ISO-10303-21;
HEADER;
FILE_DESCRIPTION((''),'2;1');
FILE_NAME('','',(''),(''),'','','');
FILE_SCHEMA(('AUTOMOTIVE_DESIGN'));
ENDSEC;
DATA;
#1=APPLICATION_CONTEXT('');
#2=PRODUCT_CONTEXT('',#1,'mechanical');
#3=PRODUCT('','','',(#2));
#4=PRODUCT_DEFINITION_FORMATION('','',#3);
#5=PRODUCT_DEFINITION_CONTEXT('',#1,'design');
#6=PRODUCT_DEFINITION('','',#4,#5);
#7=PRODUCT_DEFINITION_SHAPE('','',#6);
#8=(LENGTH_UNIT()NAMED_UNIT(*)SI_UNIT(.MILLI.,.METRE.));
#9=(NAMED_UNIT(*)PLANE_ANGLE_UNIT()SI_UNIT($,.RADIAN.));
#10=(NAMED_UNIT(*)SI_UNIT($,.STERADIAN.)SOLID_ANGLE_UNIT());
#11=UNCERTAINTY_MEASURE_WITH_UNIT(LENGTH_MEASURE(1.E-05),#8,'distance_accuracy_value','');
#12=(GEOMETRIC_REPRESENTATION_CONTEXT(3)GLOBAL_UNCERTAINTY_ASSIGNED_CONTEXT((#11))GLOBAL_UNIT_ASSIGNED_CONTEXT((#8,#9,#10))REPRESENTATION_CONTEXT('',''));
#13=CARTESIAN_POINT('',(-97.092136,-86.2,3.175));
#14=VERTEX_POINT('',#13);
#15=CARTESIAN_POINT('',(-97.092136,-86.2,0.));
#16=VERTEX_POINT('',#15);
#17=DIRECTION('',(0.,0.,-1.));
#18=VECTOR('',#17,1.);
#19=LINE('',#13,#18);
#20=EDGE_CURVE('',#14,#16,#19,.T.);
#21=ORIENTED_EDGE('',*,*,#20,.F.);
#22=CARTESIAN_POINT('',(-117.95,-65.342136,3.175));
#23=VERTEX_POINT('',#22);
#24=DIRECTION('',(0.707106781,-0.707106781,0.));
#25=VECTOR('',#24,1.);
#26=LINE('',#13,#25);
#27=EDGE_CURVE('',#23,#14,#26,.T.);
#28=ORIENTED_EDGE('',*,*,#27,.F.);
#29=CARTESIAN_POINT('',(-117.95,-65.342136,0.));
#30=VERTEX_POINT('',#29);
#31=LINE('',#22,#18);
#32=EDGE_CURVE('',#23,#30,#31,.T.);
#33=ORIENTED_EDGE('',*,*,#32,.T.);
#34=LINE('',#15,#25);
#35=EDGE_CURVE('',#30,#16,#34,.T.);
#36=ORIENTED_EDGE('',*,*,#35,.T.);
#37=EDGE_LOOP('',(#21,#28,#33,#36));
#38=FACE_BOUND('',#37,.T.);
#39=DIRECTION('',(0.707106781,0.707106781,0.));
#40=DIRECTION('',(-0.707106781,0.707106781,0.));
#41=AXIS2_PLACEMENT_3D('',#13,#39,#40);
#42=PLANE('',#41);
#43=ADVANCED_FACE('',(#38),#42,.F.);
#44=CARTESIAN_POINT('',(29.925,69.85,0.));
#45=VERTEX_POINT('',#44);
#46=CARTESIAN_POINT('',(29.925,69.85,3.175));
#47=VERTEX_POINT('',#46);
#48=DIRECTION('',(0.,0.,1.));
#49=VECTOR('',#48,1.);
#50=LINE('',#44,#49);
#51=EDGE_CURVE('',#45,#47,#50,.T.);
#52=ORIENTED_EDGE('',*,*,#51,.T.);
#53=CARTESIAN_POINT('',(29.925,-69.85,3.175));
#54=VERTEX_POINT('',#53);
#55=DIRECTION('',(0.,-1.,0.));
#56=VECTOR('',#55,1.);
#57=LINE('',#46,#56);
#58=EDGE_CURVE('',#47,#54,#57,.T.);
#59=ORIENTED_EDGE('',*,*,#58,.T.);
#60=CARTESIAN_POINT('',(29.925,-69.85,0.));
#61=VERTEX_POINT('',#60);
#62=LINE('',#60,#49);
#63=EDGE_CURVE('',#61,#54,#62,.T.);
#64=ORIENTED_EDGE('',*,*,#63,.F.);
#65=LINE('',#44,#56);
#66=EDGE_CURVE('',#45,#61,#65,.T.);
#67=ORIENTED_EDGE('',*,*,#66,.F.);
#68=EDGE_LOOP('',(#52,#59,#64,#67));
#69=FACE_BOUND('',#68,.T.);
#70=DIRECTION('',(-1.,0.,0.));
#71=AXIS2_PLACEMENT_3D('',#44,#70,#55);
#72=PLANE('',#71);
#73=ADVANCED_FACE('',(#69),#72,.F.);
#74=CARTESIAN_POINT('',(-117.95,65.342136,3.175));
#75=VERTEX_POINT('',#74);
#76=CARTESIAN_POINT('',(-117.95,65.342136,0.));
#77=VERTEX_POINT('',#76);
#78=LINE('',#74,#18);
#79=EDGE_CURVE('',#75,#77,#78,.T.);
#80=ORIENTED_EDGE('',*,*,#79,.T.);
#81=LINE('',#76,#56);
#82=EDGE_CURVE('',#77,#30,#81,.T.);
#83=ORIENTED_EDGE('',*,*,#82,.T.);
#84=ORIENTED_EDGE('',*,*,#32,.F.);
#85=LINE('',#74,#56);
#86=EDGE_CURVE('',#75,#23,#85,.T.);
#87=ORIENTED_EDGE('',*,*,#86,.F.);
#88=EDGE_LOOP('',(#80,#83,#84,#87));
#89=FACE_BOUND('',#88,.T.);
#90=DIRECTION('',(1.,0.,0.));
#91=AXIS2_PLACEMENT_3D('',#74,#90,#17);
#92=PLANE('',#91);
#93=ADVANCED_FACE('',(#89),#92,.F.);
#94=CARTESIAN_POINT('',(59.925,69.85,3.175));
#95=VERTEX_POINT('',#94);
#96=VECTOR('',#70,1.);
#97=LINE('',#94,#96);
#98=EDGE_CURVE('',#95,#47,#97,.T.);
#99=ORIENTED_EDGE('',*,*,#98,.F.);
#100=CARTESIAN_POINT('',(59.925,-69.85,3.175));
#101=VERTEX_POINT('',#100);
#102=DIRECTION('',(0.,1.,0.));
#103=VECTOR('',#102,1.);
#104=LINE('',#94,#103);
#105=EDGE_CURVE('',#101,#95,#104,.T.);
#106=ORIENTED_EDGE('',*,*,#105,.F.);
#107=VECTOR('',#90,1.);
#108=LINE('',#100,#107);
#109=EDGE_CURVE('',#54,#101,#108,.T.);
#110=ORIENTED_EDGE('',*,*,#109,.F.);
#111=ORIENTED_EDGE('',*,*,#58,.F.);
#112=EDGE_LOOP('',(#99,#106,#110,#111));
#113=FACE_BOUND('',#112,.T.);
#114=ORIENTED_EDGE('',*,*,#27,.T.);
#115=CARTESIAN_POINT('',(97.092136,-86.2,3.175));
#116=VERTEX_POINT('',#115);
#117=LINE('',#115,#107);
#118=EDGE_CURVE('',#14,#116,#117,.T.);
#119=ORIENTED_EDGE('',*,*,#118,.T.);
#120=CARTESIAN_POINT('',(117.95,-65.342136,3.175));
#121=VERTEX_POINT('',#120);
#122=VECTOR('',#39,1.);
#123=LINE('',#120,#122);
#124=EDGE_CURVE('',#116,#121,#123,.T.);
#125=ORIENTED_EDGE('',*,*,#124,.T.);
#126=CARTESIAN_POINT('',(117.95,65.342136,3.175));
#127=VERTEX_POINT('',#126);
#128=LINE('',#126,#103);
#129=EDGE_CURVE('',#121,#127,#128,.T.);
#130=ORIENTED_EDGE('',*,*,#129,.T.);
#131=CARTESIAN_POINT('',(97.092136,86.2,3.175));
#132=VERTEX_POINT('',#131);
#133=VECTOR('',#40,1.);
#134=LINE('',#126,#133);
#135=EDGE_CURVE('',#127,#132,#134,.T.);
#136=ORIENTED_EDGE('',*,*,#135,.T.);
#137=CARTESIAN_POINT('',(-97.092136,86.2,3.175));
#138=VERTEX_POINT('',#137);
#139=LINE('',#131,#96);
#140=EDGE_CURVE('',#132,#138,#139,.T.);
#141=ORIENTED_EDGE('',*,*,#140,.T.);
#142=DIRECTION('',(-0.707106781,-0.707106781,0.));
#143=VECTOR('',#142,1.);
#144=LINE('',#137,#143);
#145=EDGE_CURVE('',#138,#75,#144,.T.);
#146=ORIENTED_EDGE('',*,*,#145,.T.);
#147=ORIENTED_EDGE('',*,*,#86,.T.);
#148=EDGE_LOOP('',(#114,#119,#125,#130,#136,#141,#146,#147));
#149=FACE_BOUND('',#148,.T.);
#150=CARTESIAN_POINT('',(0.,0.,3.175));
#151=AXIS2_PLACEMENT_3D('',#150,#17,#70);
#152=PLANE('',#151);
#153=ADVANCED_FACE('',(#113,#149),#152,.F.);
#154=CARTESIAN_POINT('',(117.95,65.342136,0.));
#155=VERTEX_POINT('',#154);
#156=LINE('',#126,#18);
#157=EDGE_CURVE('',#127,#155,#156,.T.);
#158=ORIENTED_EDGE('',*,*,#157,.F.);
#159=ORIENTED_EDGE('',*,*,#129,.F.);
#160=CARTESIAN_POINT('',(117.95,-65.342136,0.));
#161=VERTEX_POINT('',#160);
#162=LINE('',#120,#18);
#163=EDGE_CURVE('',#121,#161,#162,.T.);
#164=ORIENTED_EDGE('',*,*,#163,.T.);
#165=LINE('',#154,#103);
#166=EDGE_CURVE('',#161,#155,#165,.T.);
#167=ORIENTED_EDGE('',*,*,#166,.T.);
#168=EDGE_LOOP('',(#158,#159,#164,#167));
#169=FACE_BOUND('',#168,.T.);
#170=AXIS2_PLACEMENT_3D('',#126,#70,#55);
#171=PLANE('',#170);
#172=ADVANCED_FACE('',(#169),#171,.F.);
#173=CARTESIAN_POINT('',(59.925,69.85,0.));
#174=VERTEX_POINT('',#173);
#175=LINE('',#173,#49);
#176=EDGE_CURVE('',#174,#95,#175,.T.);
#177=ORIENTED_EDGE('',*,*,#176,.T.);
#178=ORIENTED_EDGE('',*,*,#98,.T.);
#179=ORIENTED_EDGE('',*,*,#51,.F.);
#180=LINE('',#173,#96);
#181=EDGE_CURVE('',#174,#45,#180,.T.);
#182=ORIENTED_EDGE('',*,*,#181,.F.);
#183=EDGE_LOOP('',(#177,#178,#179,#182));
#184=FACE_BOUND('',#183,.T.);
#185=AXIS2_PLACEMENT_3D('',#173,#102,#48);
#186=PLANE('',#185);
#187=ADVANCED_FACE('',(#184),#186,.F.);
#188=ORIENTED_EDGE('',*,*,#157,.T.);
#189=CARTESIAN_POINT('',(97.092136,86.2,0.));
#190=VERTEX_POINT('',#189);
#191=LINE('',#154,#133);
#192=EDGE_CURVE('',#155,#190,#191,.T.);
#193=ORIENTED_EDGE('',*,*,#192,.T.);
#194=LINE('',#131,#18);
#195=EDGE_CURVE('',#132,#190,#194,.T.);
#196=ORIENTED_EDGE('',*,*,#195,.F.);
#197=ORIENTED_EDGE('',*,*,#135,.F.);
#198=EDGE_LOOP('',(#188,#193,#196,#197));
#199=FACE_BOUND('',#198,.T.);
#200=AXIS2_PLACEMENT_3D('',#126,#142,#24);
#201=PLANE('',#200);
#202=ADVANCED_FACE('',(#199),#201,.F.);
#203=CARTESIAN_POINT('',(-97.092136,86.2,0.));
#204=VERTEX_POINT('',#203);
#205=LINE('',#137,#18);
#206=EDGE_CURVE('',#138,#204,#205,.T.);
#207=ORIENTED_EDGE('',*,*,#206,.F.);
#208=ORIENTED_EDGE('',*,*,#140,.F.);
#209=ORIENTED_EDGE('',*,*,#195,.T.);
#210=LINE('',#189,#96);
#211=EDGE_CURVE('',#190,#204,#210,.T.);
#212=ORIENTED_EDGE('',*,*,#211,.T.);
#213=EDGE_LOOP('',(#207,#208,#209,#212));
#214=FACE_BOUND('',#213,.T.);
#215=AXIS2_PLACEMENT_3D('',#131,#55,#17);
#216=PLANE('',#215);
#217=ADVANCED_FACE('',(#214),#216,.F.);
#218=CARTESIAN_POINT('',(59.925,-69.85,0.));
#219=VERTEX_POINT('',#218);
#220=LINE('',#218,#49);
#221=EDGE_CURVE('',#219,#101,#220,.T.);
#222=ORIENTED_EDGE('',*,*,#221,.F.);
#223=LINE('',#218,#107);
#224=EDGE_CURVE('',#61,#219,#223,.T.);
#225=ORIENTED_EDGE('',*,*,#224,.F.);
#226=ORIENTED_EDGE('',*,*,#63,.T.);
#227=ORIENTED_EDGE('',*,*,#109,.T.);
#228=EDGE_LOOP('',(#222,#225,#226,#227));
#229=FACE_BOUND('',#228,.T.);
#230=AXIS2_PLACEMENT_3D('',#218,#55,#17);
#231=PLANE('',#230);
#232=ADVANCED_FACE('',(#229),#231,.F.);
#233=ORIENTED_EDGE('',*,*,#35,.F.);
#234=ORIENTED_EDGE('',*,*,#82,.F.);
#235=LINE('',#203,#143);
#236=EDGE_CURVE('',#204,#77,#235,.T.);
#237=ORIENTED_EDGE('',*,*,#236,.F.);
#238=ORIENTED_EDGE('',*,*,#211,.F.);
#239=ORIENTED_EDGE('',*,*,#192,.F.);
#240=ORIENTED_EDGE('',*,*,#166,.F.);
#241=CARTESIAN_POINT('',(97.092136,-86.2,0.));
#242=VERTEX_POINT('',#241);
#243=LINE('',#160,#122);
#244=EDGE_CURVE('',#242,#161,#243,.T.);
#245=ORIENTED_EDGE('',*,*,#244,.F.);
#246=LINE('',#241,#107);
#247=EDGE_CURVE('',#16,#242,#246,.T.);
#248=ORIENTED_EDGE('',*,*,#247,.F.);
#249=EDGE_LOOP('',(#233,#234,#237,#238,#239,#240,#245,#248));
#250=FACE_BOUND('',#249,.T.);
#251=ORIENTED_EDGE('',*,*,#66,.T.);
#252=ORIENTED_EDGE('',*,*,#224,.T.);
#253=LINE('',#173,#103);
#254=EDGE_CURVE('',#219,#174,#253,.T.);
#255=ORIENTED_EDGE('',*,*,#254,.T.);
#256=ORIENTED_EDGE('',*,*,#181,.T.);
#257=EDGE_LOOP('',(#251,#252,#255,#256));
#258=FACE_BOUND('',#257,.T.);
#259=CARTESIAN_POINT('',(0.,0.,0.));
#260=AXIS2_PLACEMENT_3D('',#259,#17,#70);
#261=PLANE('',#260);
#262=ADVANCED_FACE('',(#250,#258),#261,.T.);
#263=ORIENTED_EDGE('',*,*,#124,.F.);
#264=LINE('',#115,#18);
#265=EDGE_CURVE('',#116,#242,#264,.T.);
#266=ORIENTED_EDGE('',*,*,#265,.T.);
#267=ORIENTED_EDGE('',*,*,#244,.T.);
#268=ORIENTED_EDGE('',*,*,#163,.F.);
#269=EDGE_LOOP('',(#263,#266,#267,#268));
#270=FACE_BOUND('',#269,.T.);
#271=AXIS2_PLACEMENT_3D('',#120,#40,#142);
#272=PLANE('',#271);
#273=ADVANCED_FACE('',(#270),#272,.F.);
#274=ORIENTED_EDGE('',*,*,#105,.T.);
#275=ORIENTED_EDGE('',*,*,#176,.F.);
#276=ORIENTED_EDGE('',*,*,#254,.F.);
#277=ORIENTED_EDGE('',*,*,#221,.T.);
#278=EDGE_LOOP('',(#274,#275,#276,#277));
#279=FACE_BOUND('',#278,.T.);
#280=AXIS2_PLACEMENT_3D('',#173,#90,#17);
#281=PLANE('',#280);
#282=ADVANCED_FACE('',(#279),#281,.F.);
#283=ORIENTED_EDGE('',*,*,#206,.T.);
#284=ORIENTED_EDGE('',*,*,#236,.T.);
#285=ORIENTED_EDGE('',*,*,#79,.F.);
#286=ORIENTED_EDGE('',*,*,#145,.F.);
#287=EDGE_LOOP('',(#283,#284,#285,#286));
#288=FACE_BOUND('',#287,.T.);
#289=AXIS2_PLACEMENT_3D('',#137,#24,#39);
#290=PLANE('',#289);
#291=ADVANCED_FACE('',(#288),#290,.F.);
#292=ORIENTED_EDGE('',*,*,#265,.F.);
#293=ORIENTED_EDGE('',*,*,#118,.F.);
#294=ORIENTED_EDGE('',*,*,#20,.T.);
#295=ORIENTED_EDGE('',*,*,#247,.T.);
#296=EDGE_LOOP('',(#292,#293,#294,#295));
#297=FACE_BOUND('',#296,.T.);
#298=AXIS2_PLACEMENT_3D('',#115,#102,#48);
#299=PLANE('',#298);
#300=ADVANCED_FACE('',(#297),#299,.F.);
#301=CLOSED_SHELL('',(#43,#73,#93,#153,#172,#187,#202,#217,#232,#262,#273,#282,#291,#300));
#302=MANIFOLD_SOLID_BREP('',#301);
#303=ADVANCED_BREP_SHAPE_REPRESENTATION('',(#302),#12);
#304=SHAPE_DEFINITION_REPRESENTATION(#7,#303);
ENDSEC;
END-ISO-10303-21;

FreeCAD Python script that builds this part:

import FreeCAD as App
import Part
import Sketcher
from FreeCAD import Vector
Q = App.Units.Quantity

doc = App.newDocument("Part")
body = doc.addObject("PartDesign::Body", "Body")

sketch1 = doc.addObject("Sketcher::SketchObject", "Sketch")
body.addObject(sketch1)
sketch1.AttachmentSupport = (doc.XY_Plane, [""])
sketch1.MapMode = "FlatFace"
sketch1.addGeometry([
    Part.LineSegment(Vector(-97, -86, 0), Vector(97, -86, 0)),
    Part.LineSegment(Vector(97, -86, 0), Vector(118, -65, 0)),
    Part.LineSegment(Vector(118, -65, 0), Vector(118, 65, 0)),
    Part.LineSegment(Vector(118, 65, 0), Vector(97, 86, 0)),
    Part.LineSegment(Vector(97, 86, 0), Vector(-97, 86, 0)),
    Part.LineSegment(Vector(-97, 86, 0), Vector(-118, 65, 0)),
    Part.LineSegment(Vector(-118, 65, 0), Vector(-118, -65, 0)),
    Part.LineSegment(Vector(-118, -65, 0), Vector(-97, -86, 0)),
], False)
sketch1.addConstraint([
    Sketcher.Constraint("Coincident", 0, 2, 1, 1),
    Sketcher.Constraint("Coincident", 1, 2, 2, 1),
    Sketcher.Constraint("Coincident", 2, 2, 3, 1),
    Sketcher.Constraint("Coincident", 3, 2, 4, 1),
    Sketcher.Constraint("Coincident", 4, 2, 5, 1),
    Sketcher.Constraint("Coincident", 5, 2, 6, 1),
    Sketcher.Constraint("Coincident", 6, 2, 7, 1),
    Sketcher.Constraint("Coincident", 7, 2, 0, 1),
    Sketcher.Constraint("Horizontal", 0),
    Sketcher.Constraint("Vertical", 2),
    Sketcher.Constraint("Horizontal", 4),
    Sketcher.Constraint("Vertical", 6),
    Sketcher.Constraint("Symmetric", 0, 2, 4, 2, -1, 1),
    Sketcher.Constraint("Symmetric", 1, 2, 5, 2, -1, 1),
    Sketcher.Constraint("Perpendicular", 1, 3),
    Sketcher.Constraint("Perpendicular", 5, 7),
    Sketcher.Constraint("Horizontal", 2, 2, 5, 2),
    Sketcher.Constraint("Horizontal", 1, 2, 6, 2),
    Sketcher.Constraint("Vertical", 0, 2, 3, 2),
    Sketcher.Constraint("DistanceX", 0, 1, 0, 2, Q("194.184271 mm")),
    Sketcher.Constraint("DistanceY", 2, 1, 2, 2, Q("130.684271 mm")),
    Sketcher.Constraint("DistanceY", 0, 2, -1, 1, Q("86.2 mm")),
])
pad1 = doc.addObject("PartDesign::Pad", "Pad")
body.addObject(pad1)
pad1.Profile = sketch1
pad1.Length = Q("0.125 in")

sketch2 = doc.addObject("Sketcher::SketchObject", "Sketch001")
body.addObject(sketch2)
sketch2.AttachmentSupport = (doc.XY_Plane, [""])
sketch2.MapMode = "FlatFace"
sketch2.AttachmentOffset = App.Placement(Vector(0, 0, 0.125 * 25.4), App.Rotation())
sketch2.addGeometry([
    Part.LineSegment(Vector(30, 70, 0), Vector(30, -70, 0)),
    Part.LineSegment(Vector(30, -70, 0), Vector(60, -70, 0)),
    Part.LineSegment(Vector(60, -70, 0), Vector(60, 70, 0)),
    Part.LineSegment(Vector(60, 70, 0), Vector(30, 70, 0)),
], False)
sketch2.addConstraint([
    Sketcher.Constraint("Coincident", 0, 2, 1, 1),
    Sketcher.Constraint("Coincident", 1, 2, 2, 1),
    Sketcher.Constraint("Coincident", 2, 2, 3, 1),
    Sketcher.Constraint("Coincident", 3, 2, 0, 1),
    Sketcher.Constraint("Vertical", 0),
    Sketcher.Constraint("Horizontal", 1),
    Sketcher.Constraint("Vertical", 2),
    Sketcher.Constraint("Horizontal", 3),
    Sketcher.Constraint("DistanceY", 0, 2, 0, 1, Q("5.5 in")),
    Sketcher.Constraint("DistanceY", 0, 2, -1, 1, Q("2.75 in")),
    Sketcher.Constraint("DistanceX", 1, 1, 1, 2, Q("30 mm")),
    Sketcher.Constraint("DistanceX", -1, 1, 0, 2, Q("29.925 mm")),
])
pocket1 = doc.addObject("PartDesign::Pocket", "Pocket")
body.addObject(pocket1)
pocket1.Profile = sketch2
pocket1.Length = Q("0.125 in")

doc.recompute()
